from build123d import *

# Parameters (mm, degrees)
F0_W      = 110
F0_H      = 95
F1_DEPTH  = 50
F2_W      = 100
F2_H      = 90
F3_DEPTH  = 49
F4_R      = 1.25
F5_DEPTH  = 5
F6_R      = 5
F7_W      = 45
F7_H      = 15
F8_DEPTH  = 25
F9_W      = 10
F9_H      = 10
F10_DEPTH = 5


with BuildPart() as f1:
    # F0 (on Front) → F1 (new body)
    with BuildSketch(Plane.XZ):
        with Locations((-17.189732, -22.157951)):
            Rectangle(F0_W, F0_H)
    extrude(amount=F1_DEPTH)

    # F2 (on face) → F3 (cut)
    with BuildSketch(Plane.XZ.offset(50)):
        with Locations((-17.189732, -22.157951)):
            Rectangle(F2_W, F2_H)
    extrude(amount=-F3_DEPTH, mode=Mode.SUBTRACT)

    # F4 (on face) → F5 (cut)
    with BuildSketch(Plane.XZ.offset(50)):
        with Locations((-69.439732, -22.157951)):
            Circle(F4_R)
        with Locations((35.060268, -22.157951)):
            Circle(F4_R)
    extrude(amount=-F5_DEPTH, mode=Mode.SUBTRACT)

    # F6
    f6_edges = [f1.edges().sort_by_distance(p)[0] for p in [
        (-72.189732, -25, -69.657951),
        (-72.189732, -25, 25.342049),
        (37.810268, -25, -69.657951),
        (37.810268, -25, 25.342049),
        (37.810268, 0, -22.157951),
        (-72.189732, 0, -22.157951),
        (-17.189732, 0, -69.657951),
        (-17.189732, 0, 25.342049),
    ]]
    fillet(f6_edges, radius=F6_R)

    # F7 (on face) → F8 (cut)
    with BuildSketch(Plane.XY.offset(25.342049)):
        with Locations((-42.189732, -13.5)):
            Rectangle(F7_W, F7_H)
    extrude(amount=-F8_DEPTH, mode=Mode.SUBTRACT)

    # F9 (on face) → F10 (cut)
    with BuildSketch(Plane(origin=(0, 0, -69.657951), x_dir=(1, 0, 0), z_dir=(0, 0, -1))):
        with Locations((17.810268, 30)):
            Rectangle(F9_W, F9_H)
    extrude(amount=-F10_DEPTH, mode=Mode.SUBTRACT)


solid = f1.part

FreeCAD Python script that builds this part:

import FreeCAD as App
import Part
import Sketcher
from FreeCAD import Vector
Q = App.Units.Quantity


def edges_at(feature, points):
    """Names of the edges that pass closest to the given points."""
    edges = feature.Shape.Edges
    near = lambda p: min(range(len(edges)), key=lambda i: edges[i].distToShape(Part.Vertex(*p))[0])
    return sorted({f"Edge{near(p) + 1}" for p in points})

doc = App.newDocument("Part")
body = doc.addObject("PartDesign::Body", "Body")

sketch1 = doc.addObject("Sketcher::SketchObject", "Sketch")
body.addObject(sketch1)
sketch1.AttachmentSupport = (doc.XZ_Plane, [""])
sketch1.MapMode = "FlatFace"
sketch1.addGeometry([
    Part.LineSegment(Vector(-72.189732, 25.342049, 0), Vector(-72.189732, -69.657951, 0)),
    Part.LineSegment(Vector(-72.189732, -69.657951, 0), Vector(37.810268, -69.657951, 0)),
    Part.LineSegment(Vector(37.810268, -69.657951, 0), Vector(37.810268, 25.342049, 0)),
    Part.LineSegment(Vector(37.810268, 25.342049, 0), Vector(-72.189732, 25.342049, 0)),
], False)
sketch1.addConstraint([
    Sketcher.Constraint("Coincident", 0, 2, 1, 1),
    Sketcher.Constraint("Coincident", 1, 2, 2, 1),
    Sketcher.Constraint("Coincident", 2, 2, 3, 1),
    Sketcher.Constraint("Coincident", 3, 2, 0, 1),
    Sketcher.Constraint("Vertical", 0),
    Sketcher.Constraint("Horizontal", 1),
    Sketcher.Constraint("Vertical", 2),
    Sketcher.Constraint("Horizontal", 3),
    Sketcher.Constraint("DistanceX", 1, 1, 1, 2, Q("110 mm")),
    Sketcher.Constraint("DistanceY", 0, 2, 0, 1, Q("95 mm")),
    Sketcher.Constraint("DistanceY", 0, 2, -1, 1, Q("69.657951 mm")),
    Sketcher.Constraint("DistanceX", 0, 2, -1, 1, Q("72.189732 mm")),
])
pad1 = doc.addObject("PartDesign::Pad", "Pad")
body.addObject(pad1)
pad1.Profile = sketch1
pad1.Length = 50

sketch2 = doc.addObject("Sketcher::SketchObject", "Sketch001")
body.addObject(sketch2)
sketch2.AttachmentSupport = (doc.XZ_Plane, [""])
sketch2.MapMode = "FlatFace"
sketch2.AttachmentOffset = App.Placement(Vector(0, 0, 50), App.Rotation())
sketch2.addGeometry([
    Part.LineSegment(Vector(-67.189732, 22.842049, 0), Vector(-67.189732, -67.157951, 0)),
    Part.LineSegment(Vector(-67.189732, -67.157951, 0), Vector(32.810268, -67.157951, 0)),
    Part.LineSegment(Vector(32.810268, -67.157951, 0), Vector(32.810268, 22.842049, 0)),
    Part.LineSegment(Vector(32.810268, 22.842049, 0), Vector(-67.189732, 22.842049, 0)),
], False)
sketch2.addConstraint([
    Sketcher.Constraint("Coincident", 0, 2, 1, 1),
    Sketcher.Constraint("Coincident", 1, 2, 2, 1),
    Sketcher.Constraint("Coincident", 2, 2, 3, 1),
    Sketcher.Constraint("Coincident", 3, 2, 0, 1),
    Sketcher.Constraint("Vertical", 0),
    Sketcher.Constraint("Horizontal", 1),
    Sketcher.Constraint("Vertical", 2),
    Sketcher.Constraint("Horizontal", 3),
    Sketcher.Constraint("DistanceX", 1, 1, 1, 2, Q("100 mm")),
    Sketcher.Constraint("DistanceY", 0, 2, 0, 1, Q("90 mm")),
    Sketcher.Constraint("DistanceY", 0, 2, -1, 1, Q("67.157951 mm")),
    Sketcher.Constraint("DistanceX", 0, 2, -1, 1, Q("67.189732 mm")),
])
pocket1 = doc.addObject("PartDesign::Pocket", "Pocket")
body.addObject(pocket1)
pocket1.Profile = sketch2
pocket1.Length = 49

sketch3 = doc.addObject("Sketcher::SketchObject", "Sketch002")
body.addObject(sketch3)
sketch3.AttachmentSupport = (doc.XZ_Plane, [""])
sketch3.MapMode = "FlatFace"
sketch3.AttachmentOffset = App.Placement(Vector(0, 0, 50), App.Rotation())
sketch3.addGeometry([
    Part.Circle(Vector(-69.439732, -22.157951, 0), Vector(0, 0, 1), 1.25),
    Part.Circle(Vector(35.060268, -22.157951, 0), Vector(0, 0, 1), 1.25),
], False)
sketch3.addConstraint([
    Sketcher.Constraint("Equal", 0, 1),
    Sketcher.Constraint("Horizontal", 0, 3, 1, 3),
    Sketcher.Constraint("Diameter", 0, Q("2.5 mm")),
    Sketcher.Constraint("DistanceX", 0, 3, 1, 3, Q("104.5 mm")),
    Sketcher.Constraint("DistanceY", 0, 3, -1, 1, Q("22.157951 mm")),
    Sketcher.Constraint("DistanceX", 0, 3, -1, 1, Q("69.439732 mm")),
])
pocket2 = doc.addObject("PartDesign::Pocket", "Pocket001")
body.addObject(pocket2)
pocket2.Profile = sketch3
pocket2.Length = 5
doc.recompute()

fillet = doc.addObject("PartDesign::Fillet", "Fillet")
body.addObject(fillet)
fillet.Base = (pocket2, edges_at(pocket2, [
    (-72.19, -25, -69.658),
    (-72.19, -25, 25.342),
    (37.81, -25, -69.658),
    (37.81, -25, 25.342),
    (37.81, 0, -22.158),
    (-72.19, 0, -22.158),
    (-17.19, 0, -69.658),
    (-17.19, 0, 25.342),
]))
fillet.Radius = 5

sketch4 = doc.addObject("Sketcher::SketchObject", "Sketch003")
body.addObject(sketch4)
sketch4.AttachmentSupport = (doc.XY_Plane, [""])
sketch4.MapMode = "FlatFace"
sketch4.AttachmentOffset = App.Placement(Vector(0, 0, 25.342049), App.Rotation())
sketch4.addGeometry([
    Part.LineSegment(Vector(-64.689732, -6, 0), Vector(-64.689732, -21, 0)),
    Part.LineSegment(Vector(-64.689732, -21, 0), Vector(-19.689732, -21, 0)),
    Part.LineSegment(Vector(-19.689732, -21, 0), Vector(-19.689732, -6, 0)),
    Part.LineSegment(Vector(-19.689732, -6, 0), Vector(-64.689732, -6, 0)),
], False)
sketch4.addConstraint([
    Sketcher.Constraint("Coincident", 0, 2, 1, 1),
    Sketcher.Constraint("Coincident", 1, 2, 2, 1),
    Sketcher.Constraint("Coincident", 2, 2, 3, 1),
    Sketcher.Constraint("Coincident", 3, 2, 0, 1),
    Sketcher.Constraint("Vertical", 0),
    Sketcher.Constraint("Horizontal", 1),
    Sketcher.Constraint("Vertical", 2),
    Sketcher.Constraint("Horizontal", 3),
    Sketcher.Constraint("DistanceX", 1, 1, 1, 2, Q("45 mm")),
    Sketcher.Constraint("DistanceY", 0, 2, 0, 1, Q("15 mm")),
    Sketcher.Constraint("DistanceY", 0, 2, -1, 1, Q("21 mm")),
    Sketcher.Constraint("DistanceX", 1, 2, -1, 1, Q("19.689732 mm")),
])
pocket3 = doc.addObject("PartDesign::Pocket", "Pocket002")
body.addObject(pocket3)
pocket3.Profile = sketch4
pocket3.Length = 25

sketch5 = doc.addObject("Sketcher::SketchObject", "Sketch004")
body.addObject(sketch5)
sketch5.AttachmentSupport = (doc.XY_Plane, [""])
sketch5.MapMode = "FlatFace"
sketch5.AttachmentOffset = App.Placement(Vector(0, 0, -69.657951), App.Rotation())
sketch5.addGeometry([
    Part.LineSegment(Vector(12.810268, -35, 0), Vector(12.810268, -25, 0)),
    Part.LineSegment(Vector(12.810268, -25, 0), Vector(22.810268, -25, 0)),
    Part.LineSegment(Vector(22.810268, -25, 0), Vector(22.810268, -35, 0)),
    Part.LineSegment(Vector(22.810268, -35, 0), Vector(12.810268, -35, 0)),
], False)
sketch5.addConstraint([
    Sketcher.Constraint("Coincident", 0, 2, 1, 1),
    Sketcher.Constraint("Coincident", 1, 2, 2, 1),
    Sketcher.Constraint("Coincident", 2, 2, 3, 1),
    Sketcher.Constraint("Coincident", 3, 2, 0, 1),
    Sketcher.Constraint("Vertical", 0),
    Sketcher.Constraint("Horizontal", 1),
    Sketcher.Constraint("Vertical", 2),
    Sketcher.Constraint("Horizontal", 3),
    Sketcher.Constraint("Equal", 3, 0),
    Sketcher.Constraint("DistanceX", 1, 1, 1, 2, Q("10 mm")),
    Sketcher.Constraint("DistanceY", 0, 2, -1, 1, Q("25 mm")),
    Sketcher.Constraint("DistanceX", -1, 1, 0, 2, Q("12.810268 mm")),
])
pocket4 = doc.addObject("PartDesign::Pocket", "Pocket003")
body.addObject(pocket4)
pocket4.Profile = sketch5
pocket4.Length = 5
pocket4.Reversed = True

doc.recompute()
